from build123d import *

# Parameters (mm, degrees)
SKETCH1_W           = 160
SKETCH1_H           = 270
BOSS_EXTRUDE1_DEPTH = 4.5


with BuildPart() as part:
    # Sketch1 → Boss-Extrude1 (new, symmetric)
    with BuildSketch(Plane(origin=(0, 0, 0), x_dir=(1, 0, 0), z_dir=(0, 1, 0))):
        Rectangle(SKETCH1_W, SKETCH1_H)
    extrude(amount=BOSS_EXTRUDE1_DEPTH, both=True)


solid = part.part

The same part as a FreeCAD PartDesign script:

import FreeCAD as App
import Part
import Sketcher
Q = App.Units.Quantity


def add_polygon(sketch, points):
    """Adds a closed chain of lines whose ends are joined by coincident constraints."""
    first, n = sketch.GeometryCount, len(points)
    for a, b in zip(points, points[1:] + points[:1]):
        sketch.addGeometry(Part.LineSegment(App.Vector(*a, 0), App.Vector(*b, 0)), False)
    for i in range(n):
        sketch.addConstraint(Sketcher.Constraint("Coincident", first + i, 2, first + (i + 1) % n, 1))

doc = App.newDocument("Part")
body = doc.addObject("PartDesign::Body", "Body")

# Sketch on XZ plane
sketch1 = doc.addObject("Sketcher::SketchObject", "Sketch")
body.addObject(sketch1)
sketch1.AttachmentSupport = (doc.XZ_Plane, [""])
sketch1.MapMode = "FlatFace"
add_polygon(sketch1, [(-80, -135), (-80, 135), (80, 135), (80, -135)])  # lines 0-3
sketch1.addConstraint([
    Sketcher.Constraint("Vertical", 0),
    Sketcher.Constraint("Horizontal", 1),
    Sketcher.Constraint("Vertical", 2),
    Sketcher.Constraint("Horizontal", 3),
    Sketcher.Constraint("Symmetric", 0, 2, 2, 2, -1, 1),
    Sketcher.Constraint("DistanceX", 1, 1, 1, 2, Q("160 mm")),
    Sketcher.Constraint("DistanceY", 0, 1, 0, 2, Q("270 mm")),
])
pad1 = doc.addObject("PartDesign::Pad", "Pad")
body.addObject(pad1)
pad1.Profile = sketch1
pad1.Length = 9
pad1.Midplane = True

doc.recompute()
